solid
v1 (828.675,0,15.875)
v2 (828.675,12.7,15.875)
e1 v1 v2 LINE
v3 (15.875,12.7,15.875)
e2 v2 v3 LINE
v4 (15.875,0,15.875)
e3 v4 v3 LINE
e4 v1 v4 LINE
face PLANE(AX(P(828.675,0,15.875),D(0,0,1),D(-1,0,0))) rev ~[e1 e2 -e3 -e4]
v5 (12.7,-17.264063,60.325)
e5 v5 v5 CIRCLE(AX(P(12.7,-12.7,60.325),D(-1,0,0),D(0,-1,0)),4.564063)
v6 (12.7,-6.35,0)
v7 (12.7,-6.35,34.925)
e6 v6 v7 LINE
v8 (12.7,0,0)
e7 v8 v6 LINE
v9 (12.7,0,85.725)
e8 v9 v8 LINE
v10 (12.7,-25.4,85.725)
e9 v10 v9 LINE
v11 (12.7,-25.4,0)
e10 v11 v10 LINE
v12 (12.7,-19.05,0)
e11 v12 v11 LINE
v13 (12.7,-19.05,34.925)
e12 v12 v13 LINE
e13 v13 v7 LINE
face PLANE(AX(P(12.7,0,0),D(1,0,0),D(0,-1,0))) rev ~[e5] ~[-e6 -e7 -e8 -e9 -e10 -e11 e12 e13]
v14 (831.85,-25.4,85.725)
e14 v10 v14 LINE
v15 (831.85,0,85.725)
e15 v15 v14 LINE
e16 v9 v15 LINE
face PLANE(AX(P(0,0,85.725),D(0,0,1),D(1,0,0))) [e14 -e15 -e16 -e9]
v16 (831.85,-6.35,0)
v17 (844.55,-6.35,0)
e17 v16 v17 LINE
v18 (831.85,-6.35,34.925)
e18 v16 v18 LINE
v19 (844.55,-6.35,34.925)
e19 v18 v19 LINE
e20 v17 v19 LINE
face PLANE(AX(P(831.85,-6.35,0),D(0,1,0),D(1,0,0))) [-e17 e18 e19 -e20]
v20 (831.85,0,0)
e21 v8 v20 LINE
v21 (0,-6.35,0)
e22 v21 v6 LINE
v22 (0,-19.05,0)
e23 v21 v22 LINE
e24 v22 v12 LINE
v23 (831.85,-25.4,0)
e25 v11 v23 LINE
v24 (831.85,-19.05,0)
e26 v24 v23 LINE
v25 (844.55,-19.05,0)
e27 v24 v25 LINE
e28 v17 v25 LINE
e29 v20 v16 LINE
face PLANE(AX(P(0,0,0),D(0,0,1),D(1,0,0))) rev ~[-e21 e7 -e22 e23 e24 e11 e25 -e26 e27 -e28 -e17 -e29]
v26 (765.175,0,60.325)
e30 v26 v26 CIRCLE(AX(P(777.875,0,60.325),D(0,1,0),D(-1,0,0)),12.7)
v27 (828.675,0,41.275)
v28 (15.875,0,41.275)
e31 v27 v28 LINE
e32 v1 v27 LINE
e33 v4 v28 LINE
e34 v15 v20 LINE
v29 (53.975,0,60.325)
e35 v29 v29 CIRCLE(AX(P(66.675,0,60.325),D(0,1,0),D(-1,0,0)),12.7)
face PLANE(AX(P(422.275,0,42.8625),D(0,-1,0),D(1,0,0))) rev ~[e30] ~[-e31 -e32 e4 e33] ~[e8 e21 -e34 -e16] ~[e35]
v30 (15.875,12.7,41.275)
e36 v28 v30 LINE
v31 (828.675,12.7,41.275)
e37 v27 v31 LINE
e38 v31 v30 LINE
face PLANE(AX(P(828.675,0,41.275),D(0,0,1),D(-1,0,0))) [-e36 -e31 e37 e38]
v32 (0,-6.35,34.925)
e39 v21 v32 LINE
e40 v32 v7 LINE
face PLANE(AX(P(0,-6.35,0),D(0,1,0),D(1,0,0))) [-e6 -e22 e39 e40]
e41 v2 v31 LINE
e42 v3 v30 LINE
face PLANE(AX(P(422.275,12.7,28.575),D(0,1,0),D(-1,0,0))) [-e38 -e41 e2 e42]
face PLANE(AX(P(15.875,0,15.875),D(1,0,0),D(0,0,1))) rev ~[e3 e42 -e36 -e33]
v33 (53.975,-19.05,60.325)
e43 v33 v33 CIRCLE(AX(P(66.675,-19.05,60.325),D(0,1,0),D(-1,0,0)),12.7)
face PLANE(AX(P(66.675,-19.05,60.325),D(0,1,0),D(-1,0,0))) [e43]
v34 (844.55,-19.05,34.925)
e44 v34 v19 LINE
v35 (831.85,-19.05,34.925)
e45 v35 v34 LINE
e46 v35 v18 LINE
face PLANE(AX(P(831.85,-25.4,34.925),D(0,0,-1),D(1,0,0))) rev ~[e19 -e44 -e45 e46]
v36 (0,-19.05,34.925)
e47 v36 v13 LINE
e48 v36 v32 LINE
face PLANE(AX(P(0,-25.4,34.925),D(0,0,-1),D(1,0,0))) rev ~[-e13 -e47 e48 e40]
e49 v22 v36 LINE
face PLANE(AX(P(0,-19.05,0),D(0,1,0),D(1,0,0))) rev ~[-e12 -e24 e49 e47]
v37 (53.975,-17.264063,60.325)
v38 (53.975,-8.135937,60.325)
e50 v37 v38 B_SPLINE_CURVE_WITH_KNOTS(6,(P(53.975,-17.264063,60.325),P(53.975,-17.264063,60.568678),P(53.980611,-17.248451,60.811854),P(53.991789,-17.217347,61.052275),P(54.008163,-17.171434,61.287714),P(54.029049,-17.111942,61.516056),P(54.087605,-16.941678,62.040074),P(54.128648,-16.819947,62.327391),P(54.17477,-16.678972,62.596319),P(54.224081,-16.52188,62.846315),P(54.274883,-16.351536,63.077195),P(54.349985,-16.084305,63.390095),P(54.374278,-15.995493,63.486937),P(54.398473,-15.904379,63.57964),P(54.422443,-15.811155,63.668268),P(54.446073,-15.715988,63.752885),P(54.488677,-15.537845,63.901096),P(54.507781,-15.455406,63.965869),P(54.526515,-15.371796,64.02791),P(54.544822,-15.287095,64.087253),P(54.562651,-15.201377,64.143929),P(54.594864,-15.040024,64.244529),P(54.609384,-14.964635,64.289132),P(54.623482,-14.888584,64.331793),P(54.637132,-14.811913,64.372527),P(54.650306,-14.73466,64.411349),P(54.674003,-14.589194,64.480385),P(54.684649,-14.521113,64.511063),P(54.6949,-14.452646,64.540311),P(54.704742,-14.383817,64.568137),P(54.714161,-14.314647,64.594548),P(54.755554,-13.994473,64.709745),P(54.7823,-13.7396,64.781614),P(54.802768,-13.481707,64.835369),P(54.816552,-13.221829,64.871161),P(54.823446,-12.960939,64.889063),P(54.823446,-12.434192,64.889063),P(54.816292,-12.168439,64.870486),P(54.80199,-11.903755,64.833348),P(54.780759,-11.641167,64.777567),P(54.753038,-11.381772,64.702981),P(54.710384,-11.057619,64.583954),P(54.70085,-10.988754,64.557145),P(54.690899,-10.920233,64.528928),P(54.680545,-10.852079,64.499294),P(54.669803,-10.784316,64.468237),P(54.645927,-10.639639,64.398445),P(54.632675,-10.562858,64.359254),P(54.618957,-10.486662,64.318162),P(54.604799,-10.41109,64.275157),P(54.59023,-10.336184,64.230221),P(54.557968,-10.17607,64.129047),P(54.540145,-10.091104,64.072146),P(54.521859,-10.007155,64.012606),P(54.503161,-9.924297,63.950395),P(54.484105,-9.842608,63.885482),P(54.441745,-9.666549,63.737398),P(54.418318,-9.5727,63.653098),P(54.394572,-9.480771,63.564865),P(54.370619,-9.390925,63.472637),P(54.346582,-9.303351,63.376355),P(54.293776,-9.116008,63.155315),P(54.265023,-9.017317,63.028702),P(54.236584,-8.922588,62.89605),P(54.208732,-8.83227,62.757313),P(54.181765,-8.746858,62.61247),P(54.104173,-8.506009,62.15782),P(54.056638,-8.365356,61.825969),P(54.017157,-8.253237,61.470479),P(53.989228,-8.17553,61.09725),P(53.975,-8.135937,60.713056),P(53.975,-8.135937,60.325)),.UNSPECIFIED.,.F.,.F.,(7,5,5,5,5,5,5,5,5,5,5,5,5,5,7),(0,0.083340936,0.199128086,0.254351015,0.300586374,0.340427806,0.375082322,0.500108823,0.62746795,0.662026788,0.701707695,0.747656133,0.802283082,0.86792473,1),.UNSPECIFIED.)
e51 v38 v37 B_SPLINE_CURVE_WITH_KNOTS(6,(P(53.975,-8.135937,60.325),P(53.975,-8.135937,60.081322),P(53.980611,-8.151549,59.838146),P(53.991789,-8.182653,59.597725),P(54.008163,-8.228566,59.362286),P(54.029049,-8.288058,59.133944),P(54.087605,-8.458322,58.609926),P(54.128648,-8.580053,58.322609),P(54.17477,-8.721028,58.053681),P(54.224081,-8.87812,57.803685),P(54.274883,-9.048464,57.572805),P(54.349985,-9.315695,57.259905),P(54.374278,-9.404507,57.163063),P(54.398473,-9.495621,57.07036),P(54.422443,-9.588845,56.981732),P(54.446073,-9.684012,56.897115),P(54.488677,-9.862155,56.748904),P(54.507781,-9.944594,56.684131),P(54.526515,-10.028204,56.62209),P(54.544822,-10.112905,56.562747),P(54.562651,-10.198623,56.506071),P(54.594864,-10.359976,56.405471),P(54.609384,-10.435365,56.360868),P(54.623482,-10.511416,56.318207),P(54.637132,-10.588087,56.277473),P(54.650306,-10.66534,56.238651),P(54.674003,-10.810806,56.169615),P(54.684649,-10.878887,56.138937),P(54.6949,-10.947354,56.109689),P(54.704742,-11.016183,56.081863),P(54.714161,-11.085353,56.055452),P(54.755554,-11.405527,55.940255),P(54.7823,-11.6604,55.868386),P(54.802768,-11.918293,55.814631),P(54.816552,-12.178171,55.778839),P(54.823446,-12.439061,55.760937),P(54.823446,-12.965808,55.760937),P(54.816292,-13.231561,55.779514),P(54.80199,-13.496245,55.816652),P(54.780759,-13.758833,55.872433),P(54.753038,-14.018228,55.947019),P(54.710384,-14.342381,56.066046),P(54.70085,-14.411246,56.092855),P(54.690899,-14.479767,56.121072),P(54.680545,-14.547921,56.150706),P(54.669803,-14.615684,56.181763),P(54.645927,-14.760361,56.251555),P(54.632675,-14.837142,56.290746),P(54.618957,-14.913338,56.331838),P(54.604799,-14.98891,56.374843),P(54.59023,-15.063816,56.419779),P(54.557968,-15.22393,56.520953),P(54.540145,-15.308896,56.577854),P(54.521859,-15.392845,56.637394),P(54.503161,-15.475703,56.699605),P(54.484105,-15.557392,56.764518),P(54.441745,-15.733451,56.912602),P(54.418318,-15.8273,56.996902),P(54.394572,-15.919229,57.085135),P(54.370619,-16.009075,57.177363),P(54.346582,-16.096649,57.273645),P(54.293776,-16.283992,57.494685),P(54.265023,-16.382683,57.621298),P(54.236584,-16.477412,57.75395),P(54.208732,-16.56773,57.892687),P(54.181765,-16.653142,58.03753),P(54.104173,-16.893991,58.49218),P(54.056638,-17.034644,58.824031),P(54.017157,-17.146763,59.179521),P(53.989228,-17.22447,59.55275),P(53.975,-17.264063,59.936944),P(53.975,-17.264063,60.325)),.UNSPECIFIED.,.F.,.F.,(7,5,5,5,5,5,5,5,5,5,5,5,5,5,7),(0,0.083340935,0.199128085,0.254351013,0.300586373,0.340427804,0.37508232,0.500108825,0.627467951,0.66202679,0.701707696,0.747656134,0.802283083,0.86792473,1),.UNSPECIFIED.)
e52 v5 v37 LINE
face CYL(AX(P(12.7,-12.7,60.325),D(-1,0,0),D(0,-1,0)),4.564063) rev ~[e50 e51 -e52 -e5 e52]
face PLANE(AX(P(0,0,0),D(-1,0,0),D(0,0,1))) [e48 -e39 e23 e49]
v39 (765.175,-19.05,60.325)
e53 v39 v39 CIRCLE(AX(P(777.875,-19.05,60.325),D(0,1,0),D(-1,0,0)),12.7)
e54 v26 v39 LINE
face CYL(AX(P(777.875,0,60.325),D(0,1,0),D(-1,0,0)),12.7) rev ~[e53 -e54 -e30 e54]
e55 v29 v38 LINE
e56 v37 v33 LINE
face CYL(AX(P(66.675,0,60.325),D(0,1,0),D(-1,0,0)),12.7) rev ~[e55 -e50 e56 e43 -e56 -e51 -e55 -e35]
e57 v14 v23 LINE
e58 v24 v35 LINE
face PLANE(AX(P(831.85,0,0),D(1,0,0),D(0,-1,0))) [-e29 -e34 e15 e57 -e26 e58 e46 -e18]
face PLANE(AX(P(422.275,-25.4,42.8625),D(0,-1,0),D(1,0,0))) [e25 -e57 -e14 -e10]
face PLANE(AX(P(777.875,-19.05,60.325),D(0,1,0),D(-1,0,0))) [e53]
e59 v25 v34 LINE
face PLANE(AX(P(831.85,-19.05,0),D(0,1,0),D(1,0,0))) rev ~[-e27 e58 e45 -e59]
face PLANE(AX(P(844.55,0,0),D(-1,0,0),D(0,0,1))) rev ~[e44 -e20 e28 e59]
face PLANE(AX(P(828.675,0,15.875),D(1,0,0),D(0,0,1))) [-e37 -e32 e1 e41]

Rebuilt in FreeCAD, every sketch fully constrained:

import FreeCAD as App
import Part
import Sketcher
Q = App.Units.Quantity

doc = App.newDocument("Part")
body = doc.addObject("PartDesign::Body", "Body")

sketch1 = body.newObject("Sketcher::SketchObject", "Sketch")
sketch1.AttachmentSupport = (doc.getObject("XZ_Plane"), [""])
sketch1.MapMode = "FlatFace"
sketch1.addGeometry([
    Part.LineSegment(App.Vector(0, 86, 0), App.Vector(0, 0, 0)),
    Part.LineSegment(App.Vector(0, 0, 0), App.Vector(845, 0, 0)),
    Part.LineSegment(App.Vector(845, 0, 0), App.Vector(845, 86, 0)),
    Part.LineSegment(App.Vector(845, 86, 0), App.Vector(0, 86, 0)),
], False)
sketch1.addConstraint([
    Sketcher.Constraint("Coincident", 0, 2, 1, 1),
    Sketcher.Constraint("Coincident", 1, 2, 2, 1),
    Sketcher.Constraint("Coincident", 2, 2, 3, 1),
    Sketcher.Constraint("Coincident", 3, 2, 0, 1),
    Sketcher.Constraint("Vertical", 0),
    Sketcher.Constraint("Horizontal", 1),
    Sketcher.Constraint("Vertical", 2),
    Sketcher.Constraint("Horizontal", 3),
    Sketcher.Constraint("Coincident", 0, 2, -1, 1),
    Sketcher.Constraint("DistanceX", 1, 1, 1, 2, Q("33.25 in")),
    Sketcher.Constraint("DistanceY", 0, 2, 0, 1, Q("3.375 in")),
])
pad1 = body.newObject("PartDesign::Pad", "Pad")
pad1.Profile = sketch1
pad1.Length = Q("1 in")

sketch2 = body.newObject("Sketcher::SketchObject", "Sketch001")
sketch2.AttachmentSupport = (doc.getObject("XZ_Plane"), [""])
sketch2.MapMode = "FlatFace"
sketch2.AttachmentOffset = App.Placement(App.Vector(0, 0, 1 * 25.4), App.Rotation())
sketch2.addGeometry([
    Part.LineSegment(App.Vector(0, 86, 0), App.Vector(0, 35, 0)),
    Part.LineSegment(App.Vector(0, 35, 0), App.Vector(13, 35, 0)),
    Part.LineSegment(App.Vector(13, 35, 0), App.Vector(13, 86, 0)),
    Part.LineSegment(App.Vector(13, 86, 0), App.Vector(0, 86, 0)),
    Part.LineSegment(App.Vector(832, 86, 0), App.Vector(832, 35, 0)),
    Part.LineSegment(App.Vector(832, 35, 0), App.Vector(845, 35, 0)),
    Part.LineSegment(App.Vector(845, 35, 0), App.Vector(845, 86, 0)),
    Part.LineSegment(App.Vector(845, 86, 0), App.Vector(832, 86, 0)),
], False)
sketch2.addConstraint([
    Sketcher.Constraint("Coincident", 0, 2, 1, 1),
    Sketcher.Constraint("Coincident", 1, 2, 2, 1),
    Sketcher.Constraint("Coincident", 2, 2, 3, 1),
    Sketcher.Constraint("Coincident", 3, 2, 0, 1),
    Sketcher.Constraint("Coincident", 4, 2, 5, 1),
    Sketcher.Constraint("Coincident", 5, 2, 6, 1),
    Sketcher.Constraint("Coincident", 6, 2, 7, 1),
    Sketcher.Constraint("Coincident", 7, 2, 4, 1),
    Sketcher.Constraint("Vertical", 0),
    Sketcher.Constraint("Horizontal", 1),
    Sketcher.Constraint("Vertical", 2),
    Sketcher.Constraint("Horizontal", 3),
    Sketcher.Constraint("Vertical", 4),
    Sketcher.Constraint("Horizontal", 5),
    Sketcher.Constraint("Vertical", 6),
    Sketcher.Constraint("Horizontal", 7),
    Sketcher.Constraint("PointOnObject", 0, 2, -2),
    Sketcher.Constraint("Horizontal", 1, 2, 4, 2),
    Sketcher.Constraint("Horizontal", 3, 2, 6, 2),
    Sketcher.Constraint("Equal", 3, 5),
    Sketcher.Constraint("DistanceY", 0, 2, 0, 1, Q("2 in")),
    Sketcher.Constraint("DistanceX", 1, 1, 1, 2, Q("0.5 in")),
    Sketcher.Constraint("DistanceX", -1, 1, 4, 2, Q("32.75 in")),
    Sketcher.Constraint("DistanceY", -1, 1, 0, 2, Q("1.375 in")),
])
pocket1 = body.newObject("PartDesign::Pocket", "Pocket")
pocket1.Profile = sketch2
pocket1.Type = "ThroughAll"

sketch3 = body.newObject("Sketcher::SketchObject", "Sketch002")
sketch3.AttachmentSupport = (doc.getObject("XY_Plane"), [""])
sketch3.MapMode = "FlatFace"
sketch3.addGeometry([
    Part.LineSegment(App.Vector(832, -25, 0), App.Vector(832, -19, 0)),
    Part.LineSegment(App.Vector(832, -19, 0), App.Vector(845, -19, 0)),
    Part.LineSegment(App.Vector(845, -19, 0), App.Vector(845, -25, 0)),
    Part.LineSegment(App.Vector(845, -25, 0), App.Vector(832, -25, 0)),
    Part.LineSegment(App.Vector(832, -6, 0), App.Vector(832, 0, 0)),
    Part.LineSegment(App.Vector(832, 0, 0), App.Vector(845, 0, 0)),
    Part.LineSegment(App.Vector(845, 0, 0), App.Vector(845, -6, 0)),
    Part.LineSegment(App.Vector(845, -6, 0), App.Vector(832, -6, 0)),
    Part.LineSegment(App.Vector(0, -25, 0), App.Vector(0, -19, 0)),
    Part.LineSegment(App.Vector(0, -19, 0), App.Vector(13, -19, 0)),
    Part.LineSegment(App.Vector(13, -19, 0), App.Vector(13, -25, 0)),
    Part.LineSegment(App.Vector(13, -25, 0), App.Vector(0, -25, 0)),
    Part.LineSegment(App.Vector(0, -6, 0), App.Vector(0, 0, 0)),
    Part.LineSegment(App.Vector(0, 0, 0), App.Vector(13, 0, 0)),
    Part.LineSegment(App.Vector(13, 0, 0), App.Vector(13, -6, 0)),
    Part.LineSegment(App.Vector(13, -6, 0), App.Vector(0, -6, 0)),
], False)
sketch3.addConstraint([
    Sketcher.Constraint("Coincident", 0, 2, 1, 1),
    Sketcher.Constraint("Coincident", 1, 2, 2, 1),
    Sketcher.Constraint("Coincident", 2, 2, 3, 1),
    Sketcher.Constraint("Coincident", 3, 2, 0, 1),
    Sketcher.Constraint("Coincident", 4, 2, 5, 1),
    Sketcher.Constraint("Coincident", 5, 2, 6, 1),
    Sketcher.Constraint("Coincident", 6, 2, 7, 1),
    Sketcher.Constraint("Coincident", 7, 2, 4, 1),
    Sketcher.Constraint("Coincident", 8, 2, 9, 1),
    Sketcher.Constraint("Coincident", 9, 2, 10, 1),
    Sketcher.Constraint("Coincident", 10, 2, 11, 1),
    Sketcher.Constraint("Coincident", 11, 2, 8, 1),
    Sketcher.Constraint("Coincident", 12, 2, 13, 1),
    Sketcher.Constraint("Coincident", 13, 2, 14, 1),
    Sketcher.Constraint("Coincident", 14, 2, 15, 1),
    Sketcher.Constraint("Coincident", 15, 2, 12, 1),
    Sketcher.Constraint("Vertical", 0),
    Sketcher.Constraint("Horizontal", 1),
    Sketcher.Constraint("Vertical", 2),
    Sketcher.Constraint("Horizontal", 3),
    Sketcher.Constraint("Vertical", 4),
    Sketcher.Constraint("Horizontal", 5),
    Sketcher.Constraint("Vertical", 6),
    Sketcher.Constraint("Horizontal", 7),
    Sketcher.Constraint("Vertical", 8),
    Sketcher.Constraint("Horizontal", 9),
    Sketcher.Constraint("Vertical", 10),
    Sketcher.Constraint("Horizontal", 11),
    Sketcher.Constraint("Vertical", 12),
    Sketcher.Constraint("Horizontal", 13),
    Sketcher.Constraint("Vertical", 14),
    Sketcher.Constraint("Horizontal", 15),
    Sketcher.Constraint("Coincident", 12, 2, -1, 1),
    Sketcher.Constraint("PointOnObject", 4, 2, -1),
    Sketcher.Constraint("PointOnObject", 8, 2, -2),
    Sketcher.Constraint("Horizontal", 1, 2, 8, 2),
    Sketcher.Constraint("Horizontal", 3, 2, 10, 2),
    Sketcher.Constraint("Horizontal", 7, 2, 14, 2),
    Sketcher.Constraint("Vertical", 3, 2, 4, 2),
    Sketcher.Constraint("Vertical", 2, 2, 5, 2),
    Sketcher.Constraint("Vertical", 10, 2, 13, 2),
    Sketcher.Constraint("Equal", 7, 9),
    Sketcher.Constraint("Equal", 2, 4),
    Sketcher.Constraint("DistanceX", 1, 1, 1, 2, Q("0.5 in")),
    Sketcher.Constraint("DistanceY", 2, 2, -1, 1, Q("1 in")),
    Sketcher.Constraint("DistanceY", 0, 1, 0, 2, Q("0.25 in")),
    Sketcher.Constraint("DistanceX", -1, 1, 0, 2, Q("32.75 in")),
])
pocket2 = body.newObject("PartDesign::Pocket", "Pocket001")
pocket2.Profile = sketch3
pocket2.Type = "ThroughAll"
pocket2.Reversed = True

sketch4 = body.newObject("Sketcher::SketchObject", "Sketch003")
sketch4.AttachmentSupport = (doc.getObject("YZ_Plane"), [""])
sketch4.MapMode = "FlatFace"
sketch4.AttachmentOffset = App.Placement(App.Vector(0, 0, 0.5 * 25.4), App.Rotation())
sketch4.addGeometry(Part.Circle(App.Vector(-12.7, 60.3, 0), App.Vector(0, 0, 1), 4.6), False)
sketch4.addConstraint([
    Sketcher.Constraint("Diameter", 0, Q("0.359375 in")),
    Sketcher.Constraint("DistanceX", 0, 3, -1, 1, Q("0.5 in")),
    Sketcher.Constraint("DistanceY", -1, 1, 0, 3, Q("2.375 in")),
])
pocket3 = body.newObject("PartDesign::Pocket", "Pocket002")
pocket3.Profile = sketch4
pocket3.Length = Q("2 in")
pocket3.Reversed = True

sketch5 = body.newObject("Sketcher::SketchObject", "Sketch004")
sketch5.AttachmentSupport = (doc.getObject("XZ_Plane"), [""])
sketch5.MapMode = "FlatFace"
sketch5.addGeometry([
    Part.Circle(App.Vector(67, 60, 0), App.Vector(0, 0, 1), 13),
    Part.Circle(App.Vector(778, 60, 0), App.Vector(0, 0, 1), 13),
], False)
sketch5.addConstraint([
    Sketcher.Constraint("Equal", 0, 1),
    Sketcher.Constraint("Horizontal", 0, 3, 1, 3),
    Sketcher.Constraint("Diameter", 0, Q("1 in")),
    Sketcher.Constraint("DistanceX", 0, 3, 1, 3, Q("28 in")),
    Sketcher.Constraint("DistanceX", -1, 1, 0, 3, Q("2.625 in")),
    Sketcher.Constraint("DistanceY", -1, 1, 0, 3, Q("2.375 in")),
])
pocket4 = body.newObject("PartDesign::Pocket", "Pocket003")
pocket4.Profile = sketch5
pocket4.Length = Q("0.75 in")
pocket4.Reversed = True

sketch6 = body.newObject("Sketcher::SketchObject", "Sketch005")
sketch6.AttachmentSupport = (doc.getObject("XZ_Plane"), [""])
sketch6.MapMode = "FlatFace"
sketch6.addGeometry([
    Part.LineSegment(App.Vector(829, 41, 0), App.Vector(829, 16, 0)),
    Part.LineSegment(App.Vector(829, 16, 0), App.Vector(16, 16, 0)),
    Part.LineSegment(App.Vector(16, 16, 0), App.Vector(16, 41, 0)),
    Part.LineSegment(App.Vector(16, 41, 0), App.Vector(829, 41, 0)),
], False)
sketch6.addConstraint([
    Sketcher.Constraint("Coincident", 0, 2, 1, 1),
    Sketcher.Constraint("Coincident", 1, 2, 2, 1),
    Sketcher.Constraint("Coincident", 2, 2, 3, 1),
    Sketcher.Constraint("Coincident", 3, 2, 0, 1),
    Sketcher.Constraint("Vertical", 0),
    Sketcher.Constraint("Horizontal", 1),
    Sketcher.Constraint("Vertical", 2),
    Sketcher.Constraint("Horizontal", 3),
    Sketcher.Constraint("DistanceX", 1, 2, 1, 1, Q("32 in")),
    Sketcher.Constraint("DistanceY", 0, 2, 0, 1, Q("1 in")),
    Sketcher.Constraint("DistanceX", -1, 1, 0, 2, Q("32.625 in")),
    Sketcher.Constraint("DistanceY", -1, 1, 0, 2, Q("0.625 in")),
])
pad2 = body.newObject("PartDesign::Pad", "Pad001")
pad2.Profile = sketch6
pad2.Length = Q("0.5 in")
pad2.Reversed = True

doc.recompute()
